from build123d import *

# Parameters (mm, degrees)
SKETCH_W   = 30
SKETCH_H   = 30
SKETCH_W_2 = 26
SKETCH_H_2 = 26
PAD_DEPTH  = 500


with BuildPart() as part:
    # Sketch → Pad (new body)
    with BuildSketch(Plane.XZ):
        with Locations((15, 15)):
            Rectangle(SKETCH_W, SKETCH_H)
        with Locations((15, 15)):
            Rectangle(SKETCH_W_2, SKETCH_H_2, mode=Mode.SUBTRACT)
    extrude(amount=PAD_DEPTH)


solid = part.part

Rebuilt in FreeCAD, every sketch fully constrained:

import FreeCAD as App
import Part
import Sketcher

V = App.Vector
Q = App.Units.Quantity


def add_polygon(sketch, points):
    """Adds a closed chain of lines whose ends are joined by coincident constraints."""
    first, n = sketch.GeometryCount, len(points)
    for a, b in zip(points, points[1:] + points[:1]):
        sketch.addGeometry(Part.LineSegment(App.Vector(*a, 0), App.Vector(*b, 0)), False)
    for i in range(n):
        sketch.addConstraint(Sketcher.Constraint("Coincident", first + i, 2, first + (i + 1) % n, 1))

doc = App.newDocument("Part")
body = doc.addObject("PartDesign::Body", "Body")

# Sketch on XZ plane
sketch1 = doc.addObject("Sketcher::SketchObject", "Sketch")
body.addObject(sketch1)
sketch1.AttachmentSupport = (doc.XZ_Plane, [""])
sketch1.MapMode = "FlatFace"
add_polygon(sketch1, [(0, 30), (0, 0), (30, 0), (30, 30)])  # lines 0-3
add_polygon(sketch1, [(28, 2), (2, 2), (2, 28), (28, 28)])  # lines 4-7
sketch1.addConstraint(Sketcher.Constraint("Vertical", 0))
sketch1.addConstraint(Sketcher.Constraint("Horizontal", 1))
sketch1.addConstraint(Sketcher.Constraint("Vertical", 2))
sketch1.addConstraint(Sketcher.Constraint("Horizontal", 3))
sketch1.addConstraint(Sketcher.Constraint("Horizontal", 4))
sketch1.addConstraint(Sketcher.Constraint("Vertical", 5))
sketch1.addConstraint(Sketcher.Constraint("Horizontal", 6))
sketch1.addConstraint(Sketcher.Constraint("Vertical", 7))
sketch1.addConstraint(Sketcher.Constraint("Coincident", 0, 2, -1, 1))
sketch1.addConstraint(Sketcher.Constraint("Equal", 3, 0))
sketch1.addConstraint(Sketcher.Constraint("Equal", 6, 5))
sketch1.addConstraint(Sketcher.Constraint("DistanceX", 1, 1, 1, 2, Q("30 mm")))
sketch1.addConstraint(Sketcher.Constraint("DistanceX", 4, 2, 4, 1, Q("26 mm")))
sketch1.addConstraint(Sketcher.Constraint("DistanceX", -1, 1, 4, 2, Q("2 mm")))
sketch1.addConstraint(Sketcher.Constraint("DistanceY", -1, 1, 4, 2, Q("2 mm")))
pad1 = doc.addObject("PartDesign::Pad", "Pad")
body.addObject(pad1)
pad1.Profile = sketch1
pad1.Length = 500

doc.recompute()
